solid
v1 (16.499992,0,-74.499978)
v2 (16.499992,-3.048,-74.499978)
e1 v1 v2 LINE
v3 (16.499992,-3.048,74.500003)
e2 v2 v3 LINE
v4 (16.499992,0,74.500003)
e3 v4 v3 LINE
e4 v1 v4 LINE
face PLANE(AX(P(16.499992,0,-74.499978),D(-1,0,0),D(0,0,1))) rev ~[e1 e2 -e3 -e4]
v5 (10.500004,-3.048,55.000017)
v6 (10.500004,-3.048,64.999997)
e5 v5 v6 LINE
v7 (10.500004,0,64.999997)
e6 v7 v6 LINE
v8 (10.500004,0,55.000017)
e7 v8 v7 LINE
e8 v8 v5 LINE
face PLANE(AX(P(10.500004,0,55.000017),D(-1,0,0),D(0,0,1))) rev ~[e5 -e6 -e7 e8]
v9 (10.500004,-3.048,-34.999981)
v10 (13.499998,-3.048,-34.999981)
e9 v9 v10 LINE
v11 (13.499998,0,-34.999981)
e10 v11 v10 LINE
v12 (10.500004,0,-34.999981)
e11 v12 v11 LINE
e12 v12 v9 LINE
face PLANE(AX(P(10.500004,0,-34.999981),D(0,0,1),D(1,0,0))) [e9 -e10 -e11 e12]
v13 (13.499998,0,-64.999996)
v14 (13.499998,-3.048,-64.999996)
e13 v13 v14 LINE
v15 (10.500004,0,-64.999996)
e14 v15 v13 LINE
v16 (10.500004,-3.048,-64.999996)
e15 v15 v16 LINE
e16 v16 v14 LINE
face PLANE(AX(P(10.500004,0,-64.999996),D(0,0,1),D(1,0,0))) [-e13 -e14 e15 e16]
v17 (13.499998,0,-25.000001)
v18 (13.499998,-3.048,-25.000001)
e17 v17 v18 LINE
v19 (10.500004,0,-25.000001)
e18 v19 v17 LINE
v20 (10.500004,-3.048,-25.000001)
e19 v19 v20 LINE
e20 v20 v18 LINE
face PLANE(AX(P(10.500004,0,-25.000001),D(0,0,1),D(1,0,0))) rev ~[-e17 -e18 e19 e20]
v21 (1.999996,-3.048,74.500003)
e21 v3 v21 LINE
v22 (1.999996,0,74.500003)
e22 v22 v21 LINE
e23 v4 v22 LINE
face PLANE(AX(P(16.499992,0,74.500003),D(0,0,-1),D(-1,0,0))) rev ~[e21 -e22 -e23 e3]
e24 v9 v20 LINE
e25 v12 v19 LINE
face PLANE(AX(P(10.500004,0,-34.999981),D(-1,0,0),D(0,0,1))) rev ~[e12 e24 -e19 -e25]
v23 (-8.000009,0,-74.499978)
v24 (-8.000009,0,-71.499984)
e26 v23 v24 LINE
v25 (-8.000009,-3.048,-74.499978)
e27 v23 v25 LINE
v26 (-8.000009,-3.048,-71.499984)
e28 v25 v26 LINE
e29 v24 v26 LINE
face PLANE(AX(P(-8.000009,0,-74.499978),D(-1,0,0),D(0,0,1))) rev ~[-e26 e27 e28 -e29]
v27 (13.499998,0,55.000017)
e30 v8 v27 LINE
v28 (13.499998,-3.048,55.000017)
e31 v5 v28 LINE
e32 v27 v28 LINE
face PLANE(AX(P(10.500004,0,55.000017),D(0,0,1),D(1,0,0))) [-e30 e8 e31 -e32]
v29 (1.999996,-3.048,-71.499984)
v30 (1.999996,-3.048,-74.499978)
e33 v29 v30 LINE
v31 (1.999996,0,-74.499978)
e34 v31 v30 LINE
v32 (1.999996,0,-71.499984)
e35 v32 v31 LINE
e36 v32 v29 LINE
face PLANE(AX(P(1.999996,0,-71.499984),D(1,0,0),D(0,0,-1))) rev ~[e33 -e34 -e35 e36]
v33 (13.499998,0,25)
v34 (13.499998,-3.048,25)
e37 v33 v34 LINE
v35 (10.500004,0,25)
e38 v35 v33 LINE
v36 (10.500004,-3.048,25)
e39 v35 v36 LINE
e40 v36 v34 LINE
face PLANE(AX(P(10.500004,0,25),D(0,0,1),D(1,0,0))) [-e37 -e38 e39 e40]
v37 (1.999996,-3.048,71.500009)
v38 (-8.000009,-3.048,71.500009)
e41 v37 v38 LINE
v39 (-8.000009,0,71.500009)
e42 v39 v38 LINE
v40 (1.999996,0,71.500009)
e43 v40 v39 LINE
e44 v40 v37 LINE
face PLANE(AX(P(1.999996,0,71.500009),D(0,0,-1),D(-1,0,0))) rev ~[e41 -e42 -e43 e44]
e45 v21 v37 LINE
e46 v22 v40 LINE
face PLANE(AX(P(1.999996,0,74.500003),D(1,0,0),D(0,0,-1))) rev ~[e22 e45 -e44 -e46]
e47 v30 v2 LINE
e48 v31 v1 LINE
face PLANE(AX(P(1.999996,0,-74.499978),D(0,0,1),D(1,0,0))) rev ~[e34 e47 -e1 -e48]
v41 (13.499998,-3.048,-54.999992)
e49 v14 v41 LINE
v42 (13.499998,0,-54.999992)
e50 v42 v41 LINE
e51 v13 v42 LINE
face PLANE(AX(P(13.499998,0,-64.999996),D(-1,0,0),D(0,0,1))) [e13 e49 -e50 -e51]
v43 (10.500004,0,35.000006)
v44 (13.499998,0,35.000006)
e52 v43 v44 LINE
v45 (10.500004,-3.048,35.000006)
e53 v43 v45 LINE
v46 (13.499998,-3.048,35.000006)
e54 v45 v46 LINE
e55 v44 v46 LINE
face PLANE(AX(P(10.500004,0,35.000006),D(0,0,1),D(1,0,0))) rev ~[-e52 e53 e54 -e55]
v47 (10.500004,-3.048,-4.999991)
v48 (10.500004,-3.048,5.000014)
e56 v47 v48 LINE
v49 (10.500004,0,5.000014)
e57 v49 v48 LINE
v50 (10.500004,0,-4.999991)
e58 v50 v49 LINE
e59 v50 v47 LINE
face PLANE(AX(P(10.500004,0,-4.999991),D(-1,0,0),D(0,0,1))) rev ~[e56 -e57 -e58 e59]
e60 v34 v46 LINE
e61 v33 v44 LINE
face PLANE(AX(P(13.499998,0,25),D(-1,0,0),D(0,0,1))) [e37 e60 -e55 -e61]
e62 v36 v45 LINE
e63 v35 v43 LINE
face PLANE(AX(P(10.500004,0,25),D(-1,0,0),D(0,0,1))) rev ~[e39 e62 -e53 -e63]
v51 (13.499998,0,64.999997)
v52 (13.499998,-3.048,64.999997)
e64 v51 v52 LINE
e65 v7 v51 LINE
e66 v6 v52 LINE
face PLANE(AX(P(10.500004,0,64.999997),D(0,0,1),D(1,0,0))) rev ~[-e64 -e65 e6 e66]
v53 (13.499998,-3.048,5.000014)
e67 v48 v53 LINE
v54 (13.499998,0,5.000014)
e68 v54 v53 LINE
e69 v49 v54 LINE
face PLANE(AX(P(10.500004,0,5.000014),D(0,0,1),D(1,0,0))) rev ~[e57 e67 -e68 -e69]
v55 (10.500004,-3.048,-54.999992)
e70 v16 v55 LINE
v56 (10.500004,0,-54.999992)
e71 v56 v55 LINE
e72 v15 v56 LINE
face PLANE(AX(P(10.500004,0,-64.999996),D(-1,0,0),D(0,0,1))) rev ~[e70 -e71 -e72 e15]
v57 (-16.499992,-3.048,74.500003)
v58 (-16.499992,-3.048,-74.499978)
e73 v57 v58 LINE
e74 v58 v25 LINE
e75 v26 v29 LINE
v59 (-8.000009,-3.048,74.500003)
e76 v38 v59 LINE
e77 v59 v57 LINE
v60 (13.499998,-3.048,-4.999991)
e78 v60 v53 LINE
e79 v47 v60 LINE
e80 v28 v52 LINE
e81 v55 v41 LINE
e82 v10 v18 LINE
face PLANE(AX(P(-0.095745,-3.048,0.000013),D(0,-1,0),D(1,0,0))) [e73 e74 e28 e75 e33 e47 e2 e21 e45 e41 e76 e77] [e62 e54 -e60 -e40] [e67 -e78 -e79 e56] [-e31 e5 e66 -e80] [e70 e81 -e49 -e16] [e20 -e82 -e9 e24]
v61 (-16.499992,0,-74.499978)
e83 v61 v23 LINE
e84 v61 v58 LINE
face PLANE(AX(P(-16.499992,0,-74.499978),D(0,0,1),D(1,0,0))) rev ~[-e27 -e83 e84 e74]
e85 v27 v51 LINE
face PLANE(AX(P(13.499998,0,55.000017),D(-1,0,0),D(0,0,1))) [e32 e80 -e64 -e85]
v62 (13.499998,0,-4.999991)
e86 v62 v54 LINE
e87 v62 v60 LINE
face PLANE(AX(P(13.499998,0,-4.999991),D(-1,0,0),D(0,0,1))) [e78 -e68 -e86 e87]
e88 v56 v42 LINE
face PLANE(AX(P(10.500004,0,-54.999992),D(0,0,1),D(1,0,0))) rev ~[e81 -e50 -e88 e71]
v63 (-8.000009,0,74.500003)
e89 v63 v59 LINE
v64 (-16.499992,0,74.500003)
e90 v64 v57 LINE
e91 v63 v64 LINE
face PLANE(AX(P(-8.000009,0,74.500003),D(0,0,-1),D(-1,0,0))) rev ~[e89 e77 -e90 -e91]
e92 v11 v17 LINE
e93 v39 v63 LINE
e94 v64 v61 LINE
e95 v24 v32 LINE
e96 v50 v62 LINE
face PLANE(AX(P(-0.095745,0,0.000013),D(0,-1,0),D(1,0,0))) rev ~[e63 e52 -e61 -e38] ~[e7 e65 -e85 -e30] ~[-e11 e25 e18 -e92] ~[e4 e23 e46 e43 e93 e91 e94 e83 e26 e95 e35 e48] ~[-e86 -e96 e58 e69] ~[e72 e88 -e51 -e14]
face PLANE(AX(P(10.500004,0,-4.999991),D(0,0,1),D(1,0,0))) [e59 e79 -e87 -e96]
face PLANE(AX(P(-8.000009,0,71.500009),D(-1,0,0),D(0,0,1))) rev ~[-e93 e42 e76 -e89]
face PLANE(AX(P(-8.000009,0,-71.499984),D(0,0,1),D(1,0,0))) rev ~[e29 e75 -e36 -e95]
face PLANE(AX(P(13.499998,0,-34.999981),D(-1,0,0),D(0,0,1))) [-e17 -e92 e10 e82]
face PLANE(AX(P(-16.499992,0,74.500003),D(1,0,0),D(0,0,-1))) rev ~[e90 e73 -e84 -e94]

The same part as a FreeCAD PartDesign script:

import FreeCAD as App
import Part
import Sketcher
Q = App.Units.Quantity

doc = App.newDocument("Part")
params = doc.addObject("Spreadsheet::Sheet", "Params")
for row, (alias, value) in enumerate([
    ("pad1_length", "0.12 in"),
], start=1):
    params.set(f"A{row}", alias)
    params.set(f"B{row}", "=" + value)
    params.setAlias(f"B{row}", alias)

body = doc.addObject("PartDesign::Body", "Body")

# Sketch on XZ plane
sketch1 = doc.addObject("Sketcher::SketchObject", "Sketch")
body.addObject(sketch1)
sketch1.AttachmentSupport = (doc.XZ_Plane, [""])
sketch1.MapMode = "FlatFace"
sketch1.addGeometry(Part.LineSegment(App.Vector(16.5, 74.5, 0), App.Vector(2, 74.5, 0)), False)
sketch1.addGeometry(Part.LineSegment(App.Vector(2, 74.5, 0), App.Vector(2, 71.5, 0)), False)
sketch1.addGeometry(Part.LineSegment(App.Vector(2, 71.5, 0), App.Vector(-8, 71.5, 0)), False)
sketch1.addGeometry(Part.LineSegment(App.Vector(-8, 71.5, 0), App.Vector(-8, 74.5, 0)), False)
sketch1.addGeometry(Part.LineSegment(App.Vector(-8, 74.5, 0), App.Vector(-16.5, 74.5, 0)), False)
sketch1.addGeometry(Part.LineSegment(App.Vector(-16.5, 74.5, 0), App.Vector(-16.5, -74.5, 0)), False)
sketch1.addGeometry(Part.LineSegment(App.Vector(-16.5, -74.5, 0), App.Vector(-8, -74.5, 0)), False)
sketch1.addGeometry(Part.LineSegment(App.Vector(-8, -74.5, 0), App.Vector(-8, -71.5, 0)), False)
sketch1.addGeometry(Part.LineSegment(App.Vector(-8, -71.5, 0), App.Vector(2, -71.5, 0)), False)
sketch1.addGeometry(Part.LineSegment(App.Vector(2, -71.5, 0), App.Vector(2, -74.5, 0)), False)
sketch1.addGeometry(Part.LineSegment(App.Vector(2, -74.5, 0), App.Vector(16.5, -74.5, 0)), False)
sketch1.addGeometry(Part.LineSegment(App.Vector(16.5, -74.5, 0), App.Vector(16.5, 74.5, 0)), False)
sketch1.addGeometry(Part.LineSegment(App.Vector(13.5, -65, 0), App.Vector(10.5, -65, 0)), False)
sketch1.addGeometry(Part.LineSegment(App.Vector(10.5, -65, 0), App.Vector(10.5, -55, 0)), False)
sketch1.addGeometry(Part.LineSegment(App.Vector(10.5, -55, 0), App.Vector(13.5, -55, 0)), False)
sketch1.addGeometry(Part.LineSegment(App.Vector(13.5, -55, 0), App.Vector(13.5, -65, 0)), False)
sketch1.addGeometry(Part.LineSegment(App.Vector(13.5, -35, 0), App.Vector(10.5, -35, 0)), False)
sketch1.addGeometry(Part.LineSegment(App.Vector(10.5, -35, 0), App.Vector(10.5, -25, 0)), False)
sketch1.addGeometry(Part.LineSegment(App.Vector(10.5, -25, 0), App.Vector(13.5, -25, 0)), False)
sketch1.addGeometry(Part.LineSegment(App.Vector(13.5, -25, 0), App.Vector(13.5, -35, 0)), False)
sketch1.addGeometry(Part.LineSegment(App.Vector(13.5, -5, 0), App.Vector(10.5, -5, 0)), False)
sketch1.addGeometry(Part.LineSegment(App.Vector(10.5, -5, 0), App.Vector(10.5, 5, 0)), False)
sketch1.addGeometry(Part.LineSegment(App.Vector(10.5, 5, 0), App.Vector(13.5, 5, 0)), False)
sketch1.addGeometry(Part.LineSegment(App.Vector(13.5, 5, 0), App.Vector(13.5, -5, 0)), False)
sketch1.addGeometry(Part.LineSegment(App.Vector(13.5, 25, 0), App.Vector(10.5, 25, 0)), False)
sketch1.addGeometry(Part.LineSegment(App.Vector(10.5, 25, 0), App.Vector(10.5, 35, 0)), False)
sketch1.addGeometry(Part.LineSegment(App.Vector(10.5, 35, 0), App.Vector(13.5, 35, 0)), False)
sketch1.addGeometry(Part.LineSegment(App.Vector(13.5, 35, 0), App.Vector(13.5, 25, 0)), False)
sketch1.addGeometry(Part.LineSegment(App.Vector(13.5, 55, 0), App.Vector(10.5, 55, 0)), False)
sketch1.addGeometry(Part.LineSegment(App.Vector(10.5, 55, 0), App.Vector(10.5, 65, 0)), False)
sketch1.addGeometry(Part.LineSegment(App.Vector(10.5, 65, 0), App.Vector(13.5, 65, 0)), False)
sketch1.addGeometry(Part.LineSegment(App.Vector(13.5, 65, 0), App.Vector(13.5, 55, 0)), False)
sketch1.addConstraint(Sketcher.Constraint("Coincident", 0, 2, 1, 1))
sketch1.addConstraint(Sketcher.Constraint("Coincident", 1, 2, 2, 1))
sketch1.addConstraint(Sketcher.Constraint("Coincident", 2, 2, 3, 1))
sketch1.addConstraint(Sketcher.Constraint("Coincident", 3, 2, 4, 1))
sketch1.addConstraint(Sketcher.Constraint("Coincident", 4, 2, 5, 1))
sketch1.addConstraint(Sketcher.Constraint("Coincident", 5, 2, 6, 1))
sketch1.addConstraint(Sketcher.Constraint("Coincident", 6, 2, 7, 1))
sketch1.addConstraint(Sketcher.Constraint("Coincident", 7, 2, 8, 1))
sketch1.addConstraint(Sketcher.Constraint("Coincident", 8, 2, 9, 1))
sketch1.addConstraint(Sketcher.Constraint("Coincident", 9, 2, 10, 1))
sketch1.addConstraint(Sketcher.Constraint("Coincident", 10, 2, 11, 1))
sketch1.addConstraint(Sketcher.Constraint("Coincident", 11, 2, 0, 1))
sketch1.addConstraint(Sketcher.Constraint("Coincident", 12, 2, 13, 1))
sketch1.addConstraint(Sketcher.Constraint("Coincident", 13, 2, 14, 1))
sketch1.addConstraint(Sketcher.Constraint("Coincident", 14, 2, 15, 1))
sketch1.addConstraint(Sketcher.Constraint("Coincident", 15, 2, 12, 1))
sketch1.addConstraint(Sketcher.Constraint("Coincident", 16, 2, 17, 1))
sketch1.addConstraint(Sketcher.Constraint("Coincident", 17, 2, 18, 1))
sketch1.addConstraint(Sketcher.Constraint("Coincident", 18, 2, 19, 1))
sketch1.addConstraint(Sketcher.Constraint("Coincident", 19, 2, 16, 1))
sketch1.addConstraint(Sketcher.Constraint("Coincident", 20, 2, 21, 1))
sketch1.addConstraint(Sketcher.Constraint("Coincident", 21, 2, 22, 1))
sketch1.addConstraint(Sketcher.Constraint("Coincident", 22, 2, 23, 1))
sketch1.addConstraint(Sketcher.Constraint("Coincident", 23, 2, 20, 1))
sketch1.addConstraint(Sketcher.Constraint("Coincident", 24, 2, 25, 1))
sketch1.addConstraint(Sketcher.Constraint("Coincident", 25, 2, 26, 1))
sketch1.addConstraint(Sketcher.Constraint("Coincident", 26, 2, 27, 1))
sketch1.addConstraint(Sketcher.Constraint("Coincident", 27, 2, 24, 1))
sketch1.addConstraint(Sketcher.Constraint("Coincident", 28, 2, 29, 1))
sketch1.addConstraint(Sketcher.Constraint("Coincident", 29, 2, 30, 1))
sketch1.addConstraint(Sketcher.Constraint("Coincident", 30, 2, 31, 1))
sketch1.addConstraint(Sketcher.Constraint("Coincident", 31, 2, 28, 1))
sketch1.addConstraint(Sketcher.Constraint("Horizontal", 0))
sketch1.addConstraint(Sketcher.Constraint("Vertical", 1))
sketch1.addConstraint(Sketcher.Constraint("Horizontal", 2))
sketch1.addConstraint(Sketcher.Constraint("Vertical", 3))
sketch1.addConstraint(Sketcher.Constraint("Horizontal", 4))
sketch1.addConstraint(Sketcher.Constraint("Vertical", 5))
sketch1.addConstraint(Sketcher.Constraint("Horizontal", 6))
sketch1.addConstraint(Sketcher.Constraint("Vertical", 7))
sketch1.addConstraint(Sketcher.Constraint("Horizontal", 8))
sketch1.addConstraint(Sketcher.Constraint("Vertical", 9))
sketch1.addConstraint(Sketcher.Constraint("Horizontal", 10))
sketch1.addConstraint(Sketcher.Constraint("Vertical", 11))
sketch1.addConstraint(Sketcher.Constraint("Horizontal", 12))
sketch1.addConstraint(Sketcher.Constraint("Vertical", 13))
sketch1.addConstraint(Sketcher.Constraint("Horizontal", 14))
sketch1.addConstraint(Sketcher.Constraint("Vertical", 15))
sketch1.addConstraint(Sketcher.Constraint("Horizontal", 16))
sketch1.addConstraint(Sketcher.Constraint("Vertical", 17))
sketch1.addConstraint(Sketcher.Constraint("Horizontal", 18))
sketch1.addConstraint(Sketcher.Constraint("Vertical", 19))
sketch1.addConstraint(Sketcher.Constraint("Horizontal", 20))
sketch1.addConstraint(Sketcher.Constraint("Vertical", 21))
sketch1.addConstraint(Sketcher.Constraint("Horizontal", 22))
sketch1.addConstraint(Sketcher.Constraint("Vertical", 23))
sketch1.addConstraint(Sketcher.Constraint("Horizontal", 24))
sketch1.addConstraint(Sketcher.Constraint("Vertical", 25))
sketch1.addConstraint(Sketcher.Constraint("Horizontal", 26))
sketch1.addConstraint(Sketcher.Constraint("Vertical", 27))
sketch1.addConstraint(Sketcher.Constraint("Horizontal", 28))
sketch1.addConstraint(Sketcher.Constraint("Vertical", 29))
sketch1.addConstraint(Sketcher.Constraint("Horizontal", 30))
sketch1.addConstraint(Sketcher.Constraint("Vertical", 31))
sketch1.addConstraint(Sketcher.Constraint("Symmetric", 5, 2, 10, 2, -2))
sketch1.addConstraint(Sketcher.Constraint("Symmetric", 17, 2, 24, 2, -1))
sketch1.addConstraint(Sketcher.Constraint("Symmetric", 12, 2, 29, 2, -1))
sketch1.addConstraint(Sketcher.Constraint("Horizontal", 0, 2, 3, 2))
sketch1.addConstraint(Sketcher.Constraint("Vertical", 3, 2, 6, 2))
sketch1.addConstraint(Sketcher.Constraint("Vertical", 1, 2, 8, 2))
sketch1.addConstraint(Sketcher.Constraint("Vertical", 13, 2, 16, 2))
sketch1.addConstraint(Sketcher.Constraint("Vertical", 15, 2, 18, 2))
sketch1.addConstraint(Sketcher.Constraint("Vertical", 17, 2, 20, 2))
sketch1.addConstraint(Sketcher.Constraint("Vertical", 19, 2, 22, 2))
sketch1.addConstraint(Sketcher.Constraint("Vertical", 23, 2, 26, 2))
sketch1.addConstraint(Sketcher.Constraint("Vertical", 27, 2, 30, 2))
sketch1.addConstraint(Sketcher.Constraint("Equal", 30, 1))
sketch1.addConstraint(Sketcher.Constraint("Equal", 3, 7))
sketch1.addConstraint(Sketcher.Constraint("Equal", 8, 13))
sketch1.addConstraint(Sketcher.Constraint("Equal", 15, 21))
sketch1.addConstraint(Sketcher.Constraint("Equal", 23, 25))
sketch1.addConstraint(Sketcher.Constraint("Equal", 19, 29))
sketch1.addConstraint(Sketcher.Constraint("DistanceY", 17, 1, 17, 2, Q("0.3937 in")))
sketch1.addConstraint(Sketcher.Constraint("DistanceY", 5, 2, 5, 1, Q("148.999981 mm")))
sketch1.addConstraint(Sketcher.Constraint("DistanceY", 17, 2, -1, 1, Q("25.000001 mm")))
sketch1.addConstraint(Sketcher.Constraint("DistanceX", 6, 2, 10, 2, Q("24.500001 mm")))
sketch1.addConstraint(Sketcher.Constraint("DistanceY", 13, 2, 20, 2, Q("50.000001 mm")))
sketch1.addConstraint(Sketcher.Constraint("DistanceX", 0, 2, 0, 1, Q("14.499996 mm")))
sketch1.addConstraint(Sketcher.Constraint("DistanceX", 4, 2, 4, 1, Q("8.499983 mm")))
sketch1.addConstraint(Sketcher.Constraint("DistanceX", 12, 2, 12, 1, Q("2.999994 mm")))
sketch1.addConstraint(Sketcher.Constraint("DistanceY", -1, 1, 1, 2, Q("71.500009 mm")))
sketch1.addConstraint(Sketcher.Constraint("DistanceY", 13, 2, -1, 1, Q("54.999992 mm")))
sketch1.addConstraint(Sketcher.Constraint("DistanceX", 8, 2, 12, 2, Q("8.500008 mm")))
pad1 = doc.addObject("PartDesign::Pad", "Pad")
body.addObject(pad1)
pad1.Profile = sketch1
pad1.setExpression("Length", "Params.pad1_length")

doc.recompute()
